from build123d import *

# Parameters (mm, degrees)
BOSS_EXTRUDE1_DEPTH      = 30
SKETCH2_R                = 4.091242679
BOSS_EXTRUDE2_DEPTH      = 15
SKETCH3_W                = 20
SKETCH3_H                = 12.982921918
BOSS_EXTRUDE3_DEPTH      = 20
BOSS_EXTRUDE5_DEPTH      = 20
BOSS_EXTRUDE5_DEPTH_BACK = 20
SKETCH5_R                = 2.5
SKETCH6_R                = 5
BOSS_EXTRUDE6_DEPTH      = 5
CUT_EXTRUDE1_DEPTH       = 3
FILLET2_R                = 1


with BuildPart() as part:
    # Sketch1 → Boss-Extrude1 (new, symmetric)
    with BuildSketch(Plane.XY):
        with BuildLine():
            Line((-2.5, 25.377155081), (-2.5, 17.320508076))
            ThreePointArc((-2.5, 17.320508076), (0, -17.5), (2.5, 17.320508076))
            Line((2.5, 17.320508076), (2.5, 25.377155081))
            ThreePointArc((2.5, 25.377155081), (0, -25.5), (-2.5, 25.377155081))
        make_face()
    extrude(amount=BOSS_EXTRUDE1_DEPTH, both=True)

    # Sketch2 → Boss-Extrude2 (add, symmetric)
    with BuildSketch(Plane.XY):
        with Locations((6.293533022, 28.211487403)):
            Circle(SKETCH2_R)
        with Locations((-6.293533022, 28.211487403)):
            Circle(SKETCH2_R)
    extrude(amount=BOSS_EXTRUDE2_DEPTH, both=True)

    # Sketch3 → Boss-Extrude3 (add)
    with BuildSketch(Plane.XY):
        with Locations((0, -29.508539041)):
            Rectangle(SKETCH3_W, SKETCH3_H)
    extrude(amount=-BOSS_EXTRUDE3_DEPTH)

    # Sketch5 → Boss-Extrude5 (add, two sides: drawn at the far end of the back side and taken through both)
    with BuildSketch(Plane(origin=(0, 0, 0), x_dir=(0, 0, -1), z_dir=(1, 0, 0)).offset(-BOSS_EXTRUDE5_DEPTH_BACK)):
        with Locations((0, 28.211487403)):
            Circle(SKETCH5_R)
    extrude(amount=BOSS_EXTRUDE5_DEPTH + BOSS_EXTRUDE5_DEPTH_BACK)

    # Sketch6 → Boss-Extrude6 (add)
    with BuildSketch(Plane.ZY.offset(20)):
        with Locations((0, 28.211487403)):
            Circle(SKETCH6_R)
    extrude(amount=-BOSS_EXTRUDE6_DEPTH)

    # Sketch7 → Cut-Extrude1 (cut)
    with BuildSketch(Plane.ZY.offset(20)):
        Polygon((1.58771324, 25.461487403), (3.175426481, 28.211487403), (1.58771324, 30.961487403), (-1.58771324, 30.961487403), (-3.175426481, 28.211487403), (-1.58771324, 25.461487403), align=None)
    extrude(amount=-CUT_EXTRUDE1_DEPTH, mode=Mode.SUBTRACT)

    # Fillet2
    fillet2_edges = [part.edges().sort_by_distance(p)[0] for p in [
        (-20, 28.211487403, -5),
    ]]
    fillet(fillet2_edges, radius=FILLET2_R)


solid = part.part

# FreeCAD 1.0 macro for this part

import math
import FreeCAD as App
import Part
import Sketcher
Q = App.Units.Quantity


def edges_at(feature, points):
    """Names of the edges that pass closest to the given points."""
    edges = feature.Shape.Edges
    near = lambda p: min(range(len(edges)), key=lambda i: edges[i].distToShape(Part.Vertex(*p))[0])
    return sorted({f"Edge{near(p) + 1}" for p in points})


def add_polygon(sketch, points):
    """Adds a closed chain of lines whose ends are joined by coincident constraints."""
    first, n = sketch.GeometryCount, len(points)
    for a, b in zip(points, points[1:] + points[:1]):
        sketch.addGeometry(Part.LineSegment(App.Vector(*a, 0), App.Vector(*b, 0)), False)
    for i in range(n):
        sketch.addConstraint(Sketcher.Constraint("Coincident", first + i, 2, first + (i + 1) % n, 1))

doc = App.newDocument("Part")
body = doc.addObject("PartDesign::Body", "Body")

sketch1 = doc.addObject("Sketcher::SketchObject", "Sketch")
body.addObject(sketch1)
sketch1.AttachmentSupport = (doc.XY_Plane, [""])
sketch1.MapMode = "FlatFace"
sketch1.addGeometry([
    Part.LineSegment(App.Vector(-2, 17, 0), App.Vector(-2, 25, 0)),
    Part.ArcOfCircle(Part.Circle(App.Vector(0, 0, 0), App.Vector(0, 0, 1), 26), math.radians(96), math.radians(444)),
    Part.LineSegment(App.Vector(2, 25, 0), App.Vector(2, 17, 0)),
    Part.ArcOfCircle(Part.Circle(App.Vector(0, 0, 0), App.Vector(0, 0, 1), 18), math.radians(98), math.radians(442)),
], False)
sketch1.addConstraint([
    Sketcher.Constraint("Coincident", 0, 2, 1, 1),
    Sketcher.Constraint("Coincident", 1, 2, 2, 1),
    Sketcher.Constraint("Coincident", 2, 2, 3, 2),
    Sketcher.Constraint("Coincident", 3, 1, 0, 1),
    Sketcher.Constraint("Vertical", 0),
    Sketcher.Constraint("Vertical", 2),
    Sketcher.Constraint("Coincident", 1, 3, -1, 1),
    Sketcher.Constraint("Coincident", 3, 3, -1, 1),
    Sketcher.Constraint("Horizontal", 0, 2, 1, 2),
    Sketcher.Constraint("Radius", 1, 25.5),
    Sketcher.Constraint("Radius", 3, 17.5),
    Sketcher.Constraint("DistanceX", 0, 2, 1, 2, 5.0),
])
pad1 = doc.addObject("PartDesign::Pad", "Pad")
body.addObject(pad1)
pad1.Profile = sketch1
pad1.Length = 60
pad1.Midplane = True

sketch2 = doc.addObject("Sketcher::SketchObject", "Sketch001")
body.addObject(sketch2)
sketch2.AttachmentSupport = (doc.XY_Plane, [""])
sketch2.MapMode = "FlatFace"
sketch2.addGeometry([
    Part.Circle(App.Vector(6.3, 28.2, 0), App.Vector(0, 0, 1), 4.1),
    Part.Circle(App.Vector(-6.3, 28.2, 0), App.Vector(0, 0, 1), 4.1),
], False)
sketch2.addConstraint([
    Sketcher.Constraint("Equal", 0, 1),
    Sketcher.Constraint("Symmetric", 0, 3, 1, 3, -2),
    Sketcher.Constraint("Diameter", 0, 8.182485),
    Sketcher.Constraint("DistanceX", -1, 1, 0, 3, 6.293533),
    Sketcher.Constraint("DistanceY", -1, 1, 0, 3, 28.211487),
])
pad2 = doc.addObject("PartDesign::Pad", "Pad001")
body.addObject(pad2)
pad2.Profile = sketch2
pad2.Length = 30
pad2.Midplane = True

sketch3 = doc.addObject("Sketcher::SketchObject", "Sketch002")
body.addObject(sketch3)
sketch3.AttachmentSupport = (doc.XY_Plane, [""])
sketch3.MapMode = "FlatFace"
add_polygon(sketch3, [(-10, -23), (-10, -36), (10, -36), (10, -23)])
sketch3.addConstraint([
    Sketcher.Constraint("Vertical", 0),
    Sketcher.Constraint("Horizontal", 1),
    Sketcher.Constraint("Vertical", 2),
    Sketcher.Constraint("Horizontal", 3),
    Sketcher.Constraint("DistanceX", 1, 1, 1, 2, 20.0),
    Sketcher.Constraint("DistanceX", 0, 2, -1, 1, 10.0),
    Sketcher.Constraint("DistanceY", 0, 2, -1, 1, 36.0),
    Sketcher.Constraint("DistanceY", 0, 2, 0, 1, 12.982922),
])
pad3 = doc.addObject("PartDesign::Pad", "Pad002")
body.addObject(pad3)
pad3.Profile = sketch3
pad3.Length = 20
pad3.Reversed = True

sketch4 = doc.addObject("Sketcher::SketchObject", "Sketch003")
body.addObject(sketch4)
sketch4.AttachmentSupport = (doc.YZ_Plane, [""])
sketch4.MapMode = "FlatFace"
sketch4.addGeometry(Part.Circle(App.Vector(28.2, 0, 0), App.Vector(0, 0, 1), 2.5), False)
sketch4.addConstraint([
    Sketcher.Constraint("PointOnObject", 0, 3, -1),
    Sketcher.Constraint("Diameter", 0, 5.0),
    Sketcher.Constraint("DistanceX", -1, 1, 0, 3, 28.211487),
])
pad4 = doc.addObject("PartDesign::Pad", "Pad003")
body.addObject(pad4)
pad4.Profile = sketch4
pad4.Type = "TwoLengths"
pad4.Length = 20
pad4.Length2 = 20

sketch5 = doc.addObject("Sketcher::SketchObject", "Sketch004")
body.addObject(sketch5)
sketch5.AttachmentSupport = (doc.YZ_Plane, [""])
sketch5.MapMode = "FlatFace"
sketch5.AttachmentOffset = App.Placement(App.Vector(0, 0, -20), App.Rotation())
sketch5.addGeometry(Part.Circle(App.Vector(28, 0, 0), App.Vector(0, 0, 1), 5), False)
sketch5.addConstraint([
    Sketcher.Constraint("PointOnObject", 0, 3, -1),
    Sketcher.Constraint("Diameter", 0, 10.0),
    Sketcher.Constraint("DistanceX", -1, 1, 0, 3, 28.211487),
])
pad5 = doc.addObject("PartDesign::Pad", "Pad004")
body.addObject(pad5)
pad5.Profile = sketch5
pad5.Length = 5

sketch6 = doc.addObject("Sketcher::SketchObject", "Sketch005")
body.addObject(sketch6)
sketch6.AttachmentSupport = (doc.YZ_Plane, [""])
sketch6.MapMode = "FlatFace"
sketch6.AttachmentOffset = App.Placement(App.Vector(0, 0, -20), App.Rotation())
add_polygon(sketch6, [(25.5, 1.6), (28.2, 3.2), (31, 1.6), (31, -1.6), (28.2, -3.2), (25.5, -1.6)])
sketch6.addConstraint([
    Sketcher.Constraint("Vertical", 2),
    Sketcher.Constraint("Vertical", 5),
    Sketcher.Constraint("Symmetric", 0, 2, 3, 2, -1),
    Sketcher.Constraint("Parallel", 0, 3),
    Sketcher.Constraint("Parallel", 1, 4),
    Sketcher.Constraint("Horizontal", 2, 2, 4, 2),
    Sketcher.Constraint("Horizontal", 1, 2, 5, 2),
    Sketcher.Constraint("Angle", 0, Q("30 deg")),
    Sketcher.Constraint("DistanceX", 4, 2, 2, 2, 5.5),
    Sketcher.Constraint("DistanceY", 2, 2, 2, 1, 3.175426),
    Sketcher.Constraint("DistanceX", -1, 1, 0, 2, 28.211487),
])
pocket1 = doc.addObject("PartDesign::Pocket", "Pocket")
body.addObject(pocket1)
pocket1.Profile = sketch6
pocket1.Length = 3
pocket1.Reversed = True
doc.recompute()

fillet = doc.addObject("PartDesign::Fillet", "Fillet")
body.addObject(fillet)
fillet.Base = (pocket1, edges_at(pocket1, [(-20, 28.211, -5)]))
fillet.Radius = 1

doc.recompute()
